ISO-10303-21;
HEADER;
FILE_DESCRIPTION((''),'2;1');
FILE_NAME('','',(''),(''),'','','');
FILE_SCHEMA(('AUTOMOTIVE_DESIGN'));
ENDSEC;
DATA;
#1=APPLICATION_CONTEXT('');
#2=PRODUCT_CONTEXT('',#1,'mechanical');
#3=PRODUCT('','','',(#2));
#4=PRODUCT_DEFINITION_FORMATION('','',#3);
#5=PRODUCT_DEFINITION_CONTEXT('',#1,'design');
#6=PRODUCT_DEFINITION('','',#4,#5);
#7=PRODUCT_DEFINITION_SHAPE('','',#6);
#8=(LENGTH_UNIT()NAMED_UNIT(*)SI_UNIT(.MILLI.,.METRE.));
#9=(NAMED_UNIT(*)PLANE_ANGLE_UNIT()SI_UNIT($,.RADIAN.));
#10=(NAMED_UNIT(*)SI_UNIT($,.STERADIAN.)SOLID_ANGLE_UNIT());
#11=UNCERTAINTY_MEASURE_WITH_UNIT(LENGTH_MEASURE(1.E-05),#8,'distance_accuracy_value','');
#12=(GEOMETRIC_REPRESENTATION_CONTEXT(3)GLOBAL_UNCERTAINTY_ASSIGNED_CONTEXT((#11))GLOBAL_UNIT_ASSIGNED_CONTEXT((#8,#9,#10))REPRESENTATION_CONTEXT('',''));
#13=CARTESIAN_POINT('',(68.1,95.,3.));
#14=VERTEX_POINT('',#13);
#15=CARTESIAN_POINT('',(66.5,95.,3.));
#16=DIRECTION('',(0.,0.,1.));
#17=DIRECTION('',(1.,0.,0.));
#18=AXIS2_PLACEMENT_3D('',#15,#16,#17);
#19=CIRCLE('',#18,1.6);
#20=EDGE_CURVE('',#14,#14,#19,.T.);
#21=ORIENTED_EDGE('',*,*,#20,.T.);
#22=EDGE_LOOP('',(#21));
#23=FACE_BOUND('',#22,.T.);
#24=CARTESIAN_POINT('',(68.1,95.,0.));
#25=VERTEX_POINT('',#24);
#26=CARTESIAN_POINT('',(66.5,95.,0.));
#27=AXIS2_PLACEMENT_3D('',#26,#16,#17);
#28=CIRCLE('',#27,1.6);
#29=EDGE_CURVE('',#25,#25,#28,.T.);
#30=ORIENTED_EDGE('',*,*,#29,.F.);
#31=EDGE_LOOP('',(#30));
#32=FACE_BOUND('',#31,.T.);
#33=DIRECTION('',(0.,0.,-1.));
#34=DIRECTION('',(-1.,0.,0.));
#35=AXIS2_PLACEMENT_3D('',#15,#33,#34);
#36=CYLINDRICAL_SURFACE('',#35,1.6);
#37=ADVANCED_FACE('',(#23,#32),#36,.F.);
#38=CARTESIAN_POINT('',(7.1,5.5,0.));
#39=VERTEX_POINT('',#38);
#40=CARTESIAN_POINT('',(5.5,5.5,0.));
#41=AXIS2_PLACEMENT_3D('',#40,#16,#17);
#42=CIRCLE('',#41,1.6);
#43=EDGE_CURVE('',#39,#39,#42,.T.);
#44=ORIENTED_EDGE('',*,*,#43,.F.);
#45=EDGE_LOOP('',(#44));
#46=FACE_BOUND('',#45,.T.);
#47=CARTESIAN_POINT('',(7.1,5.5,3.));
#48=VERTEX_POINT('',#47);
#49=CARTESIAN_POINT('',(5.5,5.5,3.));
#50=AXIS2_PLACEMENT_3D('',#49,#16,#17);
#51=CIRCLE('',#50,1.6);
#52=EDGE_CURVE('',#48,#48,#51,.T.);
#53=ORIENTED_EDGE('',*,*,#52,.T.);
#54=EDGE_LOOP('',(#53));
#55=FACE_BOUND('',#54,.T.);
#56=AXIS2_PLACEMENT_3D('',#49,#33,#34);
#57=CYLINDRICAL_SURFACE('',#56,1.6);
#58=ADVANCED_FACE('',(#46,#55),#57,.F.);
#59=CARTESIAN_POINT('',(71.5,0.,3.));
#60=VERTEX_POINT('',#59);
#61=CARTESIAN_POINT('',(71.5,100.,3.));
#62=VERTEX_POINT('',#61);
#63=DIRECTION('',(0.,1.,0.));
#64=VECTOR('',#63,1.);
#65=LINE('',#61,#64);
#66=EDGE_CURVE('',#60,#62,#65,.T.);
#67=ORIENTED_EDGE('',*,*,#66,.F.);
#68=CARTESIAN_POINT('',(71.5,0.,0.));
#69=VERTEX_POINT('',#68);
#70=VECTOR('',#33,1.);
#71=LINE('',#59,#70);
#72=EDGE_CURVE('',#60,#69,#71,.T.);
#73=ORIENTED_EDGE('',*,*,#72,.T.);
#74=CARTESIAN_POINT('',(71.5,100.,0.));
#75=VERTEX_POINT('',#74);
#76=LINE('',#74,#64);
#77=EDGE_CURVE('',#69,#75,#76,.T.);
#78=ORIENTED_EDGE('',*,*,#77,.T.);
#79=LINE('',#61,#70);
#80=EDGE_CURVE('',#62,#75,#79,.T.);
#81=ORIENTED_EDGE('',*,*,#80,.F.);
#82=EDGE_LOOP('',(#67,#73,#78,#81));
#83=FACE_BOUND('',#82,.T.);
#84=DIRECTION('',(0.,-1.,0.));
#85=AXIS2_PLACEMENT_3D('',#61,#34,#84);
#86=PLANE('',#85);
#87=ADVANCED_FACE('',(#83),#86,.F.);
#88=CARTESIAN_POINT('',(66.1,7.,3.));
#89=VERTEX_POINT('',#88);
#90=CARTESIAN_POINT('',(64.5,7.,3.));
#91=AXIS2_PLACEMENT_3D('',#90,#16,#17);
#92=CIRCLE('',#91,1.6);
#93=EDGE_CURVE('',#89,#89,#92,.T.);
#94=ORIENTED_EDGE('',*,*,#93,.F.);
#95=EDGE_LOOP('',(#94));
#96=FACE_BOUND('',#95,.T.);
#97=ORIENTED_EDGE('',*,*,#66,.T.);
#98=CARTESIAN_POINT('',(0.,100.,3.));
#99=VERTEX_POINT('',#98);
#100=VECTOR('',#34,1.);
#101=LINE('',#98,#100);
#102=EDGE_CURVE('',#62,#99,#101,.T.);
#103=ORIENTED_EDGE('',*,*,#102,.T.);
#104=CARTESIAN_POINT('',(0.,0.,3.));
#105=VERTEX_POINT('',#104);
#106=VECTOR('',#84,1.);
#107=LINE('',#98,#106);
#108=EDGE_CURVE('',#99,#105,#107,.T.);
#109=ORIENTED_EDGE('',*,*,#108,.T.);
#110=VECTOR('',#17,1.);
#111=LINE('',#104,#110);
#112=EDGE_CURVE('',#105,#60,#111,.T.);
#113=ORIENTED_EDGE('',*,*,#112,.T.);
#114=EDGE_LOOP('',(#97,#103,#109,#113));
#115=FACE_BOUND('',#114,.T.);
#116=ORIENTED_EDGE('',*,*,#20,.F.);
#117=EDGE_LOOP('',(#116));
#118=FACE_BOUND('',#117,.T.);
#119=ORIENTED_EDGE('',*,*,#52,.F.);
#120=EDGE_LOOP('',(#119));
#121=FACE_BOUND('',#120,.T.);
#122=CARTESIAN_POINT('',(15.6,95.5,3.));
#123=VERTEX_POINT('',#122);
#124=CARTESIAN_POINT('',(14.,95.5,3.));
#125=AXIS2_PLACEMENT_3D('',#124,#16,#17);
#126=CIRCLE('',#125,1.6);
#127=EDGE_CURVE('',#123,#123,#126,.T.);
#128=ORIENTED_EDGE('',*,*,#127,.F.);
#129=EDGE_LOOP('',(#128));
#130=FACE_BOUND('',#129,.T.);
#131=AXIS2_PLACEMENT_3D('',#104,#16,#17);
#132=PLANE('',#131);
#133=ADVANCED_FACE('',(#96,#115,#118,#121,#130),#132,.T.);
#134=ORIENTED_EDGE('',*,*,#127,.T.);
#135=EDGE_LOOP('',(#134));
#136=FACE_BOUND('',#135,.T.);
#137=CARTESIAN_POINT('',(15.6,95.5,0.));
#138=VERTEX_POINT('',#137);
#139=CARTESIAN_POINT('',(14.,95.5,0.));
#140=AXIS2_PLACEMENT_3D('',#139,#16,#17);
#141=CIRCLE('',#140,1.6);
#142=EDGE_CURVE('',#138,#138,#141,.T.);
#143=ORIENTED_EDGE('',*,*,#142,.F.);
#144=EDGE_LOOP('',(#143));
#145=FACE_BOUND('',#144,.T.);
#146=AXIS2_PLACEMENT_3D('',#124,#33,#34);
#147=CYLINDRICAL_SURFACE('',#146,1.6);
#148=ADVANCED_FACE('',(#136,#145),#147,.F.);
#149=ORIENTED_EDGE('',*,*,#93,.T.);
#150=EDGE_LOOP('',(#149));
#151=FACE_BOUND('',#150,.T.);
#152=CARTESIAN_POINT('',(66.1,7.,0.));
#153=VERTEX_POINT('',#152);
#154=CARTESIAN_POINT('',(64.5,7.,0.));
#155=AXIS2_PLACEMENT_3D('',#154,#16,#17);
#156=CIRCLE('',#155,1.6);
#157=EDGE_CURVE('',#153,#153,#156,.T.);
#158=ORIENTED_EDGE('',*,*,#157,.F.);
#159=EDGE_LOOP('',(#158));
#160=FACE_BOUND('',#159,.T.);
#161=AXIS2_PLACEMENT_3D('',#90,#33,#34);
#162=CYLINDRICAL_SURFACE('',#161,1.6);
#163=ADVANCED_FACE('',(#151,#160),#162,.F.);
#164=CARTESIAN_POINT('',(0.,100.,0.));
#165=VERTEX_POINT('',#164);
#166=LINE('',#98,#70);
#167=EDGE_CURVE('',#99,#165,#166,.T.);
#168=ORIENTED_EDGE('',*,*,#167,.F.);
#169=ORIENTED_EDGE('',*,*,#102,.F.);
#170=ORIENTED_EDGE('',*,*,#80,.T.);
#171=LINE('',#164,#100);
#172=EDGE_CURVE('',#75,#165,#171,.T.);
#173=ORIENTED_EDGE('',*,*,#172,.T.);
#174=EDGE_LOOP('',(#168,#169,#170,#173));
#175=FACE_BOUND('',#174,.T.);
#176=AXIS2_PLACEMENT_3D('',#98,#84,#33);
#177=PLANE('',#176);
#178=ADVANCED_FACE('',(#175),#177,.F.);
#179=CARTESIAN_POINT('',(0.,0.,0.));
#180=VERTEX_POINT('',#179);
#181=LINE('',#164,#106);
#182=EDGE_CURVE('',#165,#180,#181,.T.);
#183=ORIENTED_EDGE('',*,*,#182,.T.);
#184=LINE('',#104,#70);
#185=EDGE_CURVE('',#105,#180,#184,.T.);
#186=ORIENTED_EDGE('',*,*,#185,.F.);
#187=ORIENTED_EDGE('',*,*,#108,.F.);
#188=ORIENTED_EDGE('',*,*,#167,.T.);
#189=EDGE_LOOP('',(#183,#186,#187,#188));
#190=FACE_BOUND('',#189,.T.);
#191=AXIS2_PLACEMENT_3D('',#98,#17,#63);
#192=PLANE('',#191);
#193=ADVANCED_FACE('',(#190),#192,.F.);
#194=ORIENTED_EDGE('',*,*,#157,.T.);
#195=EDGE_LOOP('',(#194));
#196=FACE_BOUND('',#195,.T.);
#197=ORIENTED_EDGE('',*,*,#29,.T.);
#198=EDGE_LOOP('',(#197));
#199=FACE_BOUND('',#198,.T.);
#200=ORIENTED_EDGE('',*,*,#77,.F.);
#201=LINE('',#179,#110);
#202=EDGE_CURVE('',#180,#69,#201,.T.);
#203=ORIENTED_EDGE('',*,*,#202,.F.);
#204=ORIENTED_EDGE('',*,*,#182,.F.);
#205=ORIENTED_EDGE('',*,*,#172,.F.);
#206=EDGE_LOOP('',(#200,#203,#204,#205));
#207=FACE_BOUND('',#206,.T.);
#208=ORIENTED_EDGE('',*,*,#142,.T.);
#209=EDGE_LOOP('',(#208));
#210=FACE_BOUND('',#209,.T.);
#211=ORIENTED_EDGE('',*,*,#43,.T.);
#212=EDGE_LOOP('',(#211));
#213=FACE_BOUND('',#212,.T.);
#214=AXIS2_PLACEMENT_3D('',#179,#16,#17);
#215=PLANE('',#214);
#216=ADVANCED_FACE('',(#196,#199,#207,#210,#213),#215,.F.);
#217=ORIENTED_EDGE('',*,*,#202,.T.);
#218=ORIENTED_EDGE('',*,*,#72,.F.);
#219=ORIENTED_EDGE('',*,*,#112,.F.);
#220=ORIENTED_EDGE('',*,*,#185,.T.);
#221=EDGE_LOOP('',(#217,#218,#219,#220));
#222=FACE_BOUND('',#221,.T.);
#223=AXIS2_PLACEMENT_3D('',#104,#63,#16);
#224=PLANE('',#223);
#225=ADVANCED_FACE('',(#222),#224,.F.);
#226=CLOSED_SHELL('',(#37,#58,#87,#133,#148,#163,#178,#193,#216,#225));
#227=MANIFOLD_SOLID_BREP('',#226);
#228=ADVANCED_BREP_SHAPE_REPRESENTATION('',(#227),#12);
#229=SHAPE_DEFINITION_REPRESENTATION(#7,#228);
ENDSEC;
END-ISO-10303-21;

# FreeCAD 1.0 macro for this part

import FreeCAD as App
import Part
import Sketcher
from FreeCAD import Vector
Q = App.Units.Quantity

doc = App.newDocument("Part")
params = doc.addObject("Spreadsheet::Sheet", "Params")
for row, (alias, value) in enumerate([
    ("sketch1_diameter", "3.2 mm"),
    ("sketch1_height", "100 mm"),
    ("sketch1_width", "71.5 mm"),
    ("pad1_length", "3 mm"),
], start=1):
    params.set(f"A{row}", alias)
    params.set(f"B{row}", "=" + value)
    params.setAlias(f"B{row}", alias)

body = doc.addObject("PartDesign::Body", "Body")

sketch1 = body.newObject("Sketcher::SketchObject", "Sketch")
sketch1.AttachmentSupport = (doc.getObject("XY_Plane"), [""])
sketch1.MapMode = "FlatFace"
sketch1.addGeometry(Part.LineSegment(Vector(0, 100, 0), Vector(0, 0, 0)), False)
sketch1.addGeometry(Part.LineSegment(Vector(0, 0, 0), Vector(71.5, 0, 0)), False)
sketch1.addGeometry(Part.LineSegment(Vector(71.5, 0, 0), Vector(71.5, 100, 0)), False)
sketch1.addGeometry(Part.LineSegment(Vector(71.5, 100, 0), Vector(0, 100, 0)), False)
sketch1.addGeometry(Part.Circle(Vector(5.5, 5.5, 0), Vector(0, 0, 1), 1.6), False)
sketch1.addGeometry(Part.Circle(Vector(64.5, 7, 0), Vector(0, 0, 1), 1.6), False)
sketch1.addGeometry(Part.Circle(Vector(14, 95.5, 0), Vector(0, 0, 1), 1.6), False)
sketch1.addGeometry(Part.Circle(Vector(66.5, 95, 0), Vector(0, 0, 1), 1.6), False)
sketch1.addConstraint(Sketcher.Constraint("Coincident", 0, 2, 1, 1))
sketch1.addConstraint(Sketcher.Constraint("Coincident", 1, 2, 2, 1))
sketch1.addConstraint(Sketcher.Constraint("Coincident", 2, 2, 3, 1))
sketch1.addConstraint(Sketcher.Constraint("Coincident", 3, 2, 0, 1))
sketch1.addConstraint(Sketcher.Constraint("Vertical", 0))
sketch1.addConstraint(Sketcher.Constraint("Horizontal", 1))
sketch1.addConstraint(Sketcher.Constraint("Vertical", 2))
sketch1.addConstraint(Sketcher.Constraint("Horizontal", 3))
sketch1.addConstraint(Sketcher.Constraint("Coincident", 0, 2, -1, 1))
sketch1.addConstraint(Sketcher.Constraint("Equal", 4, 5))
sketch1.addConstraint(Sketcher.Constraint("Equal", 5, 6))
sketch1.addConstraint(Sketcher.Constraint("Equal", 6, 7))
sketch1.addConstraint(Sketcher.Constraint("Diameter", 4, Q("3.2 mm")))
sketch1.addConstraint(Sketcher.Constraint("DistanceY", 0, 2, 0, 1, Q("100 mm")))
sketch1.addConstraint(Sketcher.Constraint("DistanceX", 1, 1, 1, 2, Q("71.5 mm")))
sketch1.addConstraint(Sketcher.Constraint("DistanceY", -1, 1, 5, 3, Q("7 mm")))
sketch1.addConstraint(Sketcher.Constraint("DistanceX", -1, 1, 6, 3, Q("14 mm")))
sketch1.addConstraint(Sketcher.Constraint("DistanceY", -1, 1, 7, 3, Q("95 mm")))
sketch1.addConstraint(Sketcher.Constraint("DistanceX", 4, 3, 5, 3, Q("59 mm")))
sketch1.addConstraint(Sketcher.Constraint("DistanceY", 4, 3, 6, 3, Q("90 mm")))
sketch1.addConstraint(Sketcher.Constraint("DistanceX", 5, 3, 7, 3, Q("2 mm")))
sketch1.addConstraint(Sketcher.Constraint("DistanceX", 5, 3, 1, 2, Q("7 mm")))
sketch1.addConstraint(Sketcher.Constraint("DistanceY", -1, 1, 4, 3, Q("5.5 mm")))
sketch1.setExpression("Constraints[12]", "Params.sketch1_diameter")
sketch1.setExpression("Constraints[13]", "Params.sketch1_height")
sketch1.setExpression("Constraints[14]", "Params.sketch1_width")
pad1 = body.newObject("PartDesign::Pad", "Pad")
pad1.Profile = sketch1
pad1.setExpression("Length", "Params.pad1_length")

doc.recompute()
